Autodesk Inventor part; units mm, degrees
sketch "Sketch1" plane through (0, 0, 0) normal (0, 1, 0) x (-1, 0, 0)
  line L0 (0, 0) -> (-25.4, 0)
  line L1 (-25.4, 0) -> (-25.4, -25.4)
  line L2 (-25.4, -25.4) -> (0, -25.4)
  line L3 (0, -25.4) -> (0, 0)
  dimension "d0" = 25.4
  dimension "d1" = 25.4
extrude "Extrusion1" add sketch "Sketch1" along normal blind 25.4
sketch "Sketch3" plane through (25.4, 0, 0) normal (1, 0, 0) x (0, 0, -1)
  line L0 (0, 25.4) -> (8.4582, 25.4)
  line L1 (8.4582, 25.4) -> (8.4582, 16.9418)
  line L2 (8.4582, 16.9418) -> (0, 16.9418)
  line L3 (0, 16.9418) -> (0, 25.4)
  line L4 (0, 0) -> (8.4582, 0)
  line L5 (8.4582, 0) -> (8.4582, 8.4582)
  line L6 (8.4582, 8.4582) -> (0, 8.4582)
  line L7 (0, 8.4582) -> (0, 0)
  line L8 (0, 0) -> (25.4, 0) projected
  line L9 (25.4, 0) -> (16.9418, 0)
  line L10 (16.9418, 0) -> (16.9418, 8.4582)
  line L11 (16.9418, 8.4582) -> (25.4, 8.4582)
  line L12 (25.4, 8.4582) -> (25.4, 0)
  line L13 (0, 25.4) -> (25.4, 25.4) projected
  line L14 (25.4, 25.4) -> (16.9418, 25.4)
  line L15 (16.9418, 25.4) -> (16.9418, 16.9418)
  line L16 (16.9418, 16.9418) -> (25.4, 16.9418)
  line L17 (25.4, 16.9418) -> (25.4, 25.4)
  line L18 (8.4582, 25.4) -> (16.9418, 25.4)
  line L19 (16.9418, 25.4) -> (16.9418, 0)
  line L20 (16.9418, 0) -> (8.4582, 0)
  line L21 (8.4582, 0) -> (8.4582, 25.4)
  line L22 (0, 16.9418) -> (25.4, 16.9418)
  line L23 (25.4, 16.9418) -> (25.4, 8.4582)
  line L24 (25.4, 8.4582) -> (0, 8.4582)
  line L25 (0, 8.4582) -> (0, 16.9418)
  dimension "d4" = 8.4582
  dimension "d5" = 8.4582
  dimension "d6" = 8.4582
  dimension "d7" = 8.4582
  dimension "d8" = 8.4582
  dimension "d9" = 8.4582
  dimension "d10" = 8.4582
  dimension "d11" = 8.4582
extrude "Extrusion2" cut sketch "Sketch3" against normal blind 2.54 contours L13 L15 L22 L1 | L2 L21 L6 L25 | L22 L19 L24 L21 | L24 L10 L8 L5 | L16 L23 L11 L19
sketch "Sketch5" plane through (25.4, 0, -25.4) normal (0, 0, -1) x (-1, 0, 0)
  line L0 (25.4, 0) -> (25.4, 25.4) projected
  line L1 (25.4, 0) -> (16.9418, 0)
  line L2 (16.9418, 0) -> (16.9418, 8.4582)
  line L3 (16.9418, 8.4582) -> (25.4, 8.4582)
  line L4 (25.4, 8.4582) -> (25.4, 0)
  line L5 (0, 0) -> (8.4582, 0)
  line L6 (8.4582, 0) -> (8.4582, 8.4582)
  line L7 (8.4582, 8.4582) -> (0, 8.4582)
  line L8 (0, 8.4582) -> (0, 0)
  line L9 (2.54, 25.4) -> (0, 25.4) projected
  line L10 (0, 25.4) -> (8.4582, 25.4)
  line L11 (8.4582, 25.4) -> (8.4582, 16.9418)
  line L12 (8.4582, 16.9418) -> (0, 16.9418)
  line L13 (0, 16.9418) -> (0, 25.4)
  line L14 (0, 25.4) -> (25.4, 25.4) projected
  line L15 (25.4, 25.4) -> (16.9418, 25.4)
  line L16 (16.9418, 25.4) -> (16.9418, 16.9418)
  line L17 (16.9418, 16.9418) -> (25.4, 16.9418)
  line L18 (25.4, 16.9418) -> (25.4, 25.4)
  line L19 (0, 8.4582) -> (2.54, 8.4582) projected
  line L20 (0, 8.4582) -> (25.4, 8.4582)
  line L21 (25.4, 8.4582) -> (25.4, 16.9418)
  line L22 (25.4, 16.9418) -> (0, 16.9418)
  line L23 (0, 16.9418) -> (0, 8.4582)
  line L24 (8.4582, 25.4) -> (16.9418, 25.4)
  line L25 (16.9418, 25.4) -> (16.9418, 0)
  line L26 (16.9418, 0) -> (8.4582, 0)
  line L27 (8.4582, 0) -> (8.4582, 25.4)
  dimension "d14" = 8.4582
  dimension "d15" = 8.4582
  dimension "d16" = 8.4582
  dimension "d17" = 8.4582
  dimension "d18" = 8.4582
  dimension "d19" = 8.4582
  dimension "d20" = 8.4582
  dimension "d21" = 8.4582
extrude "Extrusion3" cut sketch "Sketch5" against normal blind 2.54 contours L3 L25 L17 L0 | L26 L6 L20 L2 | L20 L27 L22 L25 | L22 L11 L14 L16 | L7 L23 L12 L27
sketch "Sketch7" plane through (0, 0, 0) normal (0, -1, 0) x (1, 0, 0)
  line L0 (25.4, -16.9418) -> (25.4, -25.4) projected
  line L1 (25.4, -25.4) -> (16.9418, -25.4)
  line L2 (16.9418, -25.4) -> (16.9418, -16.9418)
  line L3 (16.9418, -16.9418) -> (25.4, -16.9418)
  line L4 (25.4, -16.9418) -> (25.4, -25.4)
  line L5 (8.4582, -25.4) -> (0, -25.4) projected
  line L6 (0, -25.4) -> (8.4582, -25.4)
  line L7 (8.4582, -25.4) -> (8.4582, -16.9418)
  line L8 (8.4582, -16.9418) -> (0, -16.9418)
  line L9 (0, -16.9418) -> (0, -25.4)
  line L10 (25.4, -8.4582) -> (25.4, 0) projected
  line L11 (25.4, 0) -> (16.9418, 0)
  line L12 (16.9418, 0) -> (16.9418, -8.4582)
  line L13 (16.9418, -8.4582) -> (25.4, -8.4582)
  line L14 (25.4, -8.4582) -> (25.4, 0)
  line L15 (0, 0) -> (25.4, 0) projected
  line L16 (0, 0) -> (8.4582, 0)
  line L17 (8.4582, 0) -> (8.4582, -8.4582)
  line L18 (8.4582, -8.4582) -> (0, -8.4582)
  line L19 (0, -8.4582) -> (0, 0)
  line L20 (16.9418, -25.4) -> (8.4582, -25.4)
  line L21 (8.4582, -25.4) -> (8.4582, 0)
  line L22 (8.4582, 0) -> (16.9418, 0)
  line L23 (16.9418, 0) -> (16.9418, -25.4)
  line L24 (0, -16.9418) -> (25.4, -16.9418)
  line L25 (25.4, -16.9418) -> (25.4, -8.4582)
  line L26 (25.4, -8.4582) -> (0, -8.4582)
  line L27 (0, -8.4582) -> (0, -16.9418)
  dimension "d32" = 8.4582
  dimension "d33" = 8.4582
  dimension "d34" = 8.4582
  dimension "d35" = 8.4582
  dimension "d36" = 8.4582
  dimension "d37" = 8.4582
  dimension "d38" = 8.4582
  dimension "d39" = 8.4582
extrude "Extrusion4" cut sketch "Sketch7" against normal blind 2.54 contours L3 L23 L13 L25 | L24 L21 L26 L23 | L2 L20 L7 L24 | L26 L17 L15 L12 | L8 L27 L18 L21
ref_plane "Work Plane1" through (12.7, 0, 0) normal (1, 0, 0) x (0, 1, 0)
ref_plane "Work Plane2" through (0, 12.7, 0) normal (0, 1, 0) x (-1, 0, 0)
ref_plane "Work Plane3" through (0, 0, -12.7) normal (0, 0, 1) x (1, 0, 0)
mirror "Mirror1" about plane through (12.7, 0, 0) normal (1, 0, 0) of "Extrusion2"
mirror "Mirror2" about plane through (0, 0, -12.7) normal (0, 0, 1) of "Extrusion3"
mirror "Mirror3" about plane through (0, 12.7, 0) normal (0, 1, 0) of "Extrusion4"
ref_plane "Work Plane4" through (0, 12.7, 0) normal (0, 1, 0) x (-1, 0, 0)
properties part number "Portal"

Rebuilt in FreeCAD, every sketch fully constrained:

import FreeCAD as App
import Part
import Sketcher
Q = App.Units.Quantity

doc = App.newDocument("Part")
body = doc.addObject("PartDesign::Body", "Body")

sketch1 = body.newObject("Sketcher::SketchObject", "Sketch")
sketch1.AttachmentSupport = (doc.getObject("XZ_Plane"), [""])
sketch1.MapMode = "FlatFace"
sketch1.addGeometry(Part.LineSegment(App.Vector(0, -25, 0), App.Vector(0, 0, 0)), False)
sketch1.addGeometry(Part.LineSegment(App.Vector(0, 0, 0), App.Vector(25, 0, 0)), False)
sketch1.addGeometry(Part.LineSegment(App.Vector(25, 0, 0), App.Vector(25, -25, 0)), False)
sketch1.addGeometry(Part.LineSegment(App.Vector(25, -25, 0), App.Vector(0, -25, 0)), False)
sketch1.addConstraint(Sketcher.Constraint("Coincident", 0, 2, 1, 1))
sketch1.addConstraint(Sketcher.Constraint("Coincident", 1, 2, 2, 1))
sketch1.addConstraint(Sketcher.Constraint("Coincident", 2, 2, 3, 1))
sketch1.addConstraint(Sketcher.Constraint("Coincident", 3, 2, 0, 1))
sketch1.addConstraint(Sketcher.Constraint("Vertical", 0))
sketch1.addConstraint(Sketcher.Constraint("Horizontal", 1))
sketch1.addConstraint(Sketcher.Constraint("Vertical", 2))
sketch1.addConstraint(Sketcher.Constraint("Horizontal", 3))
sketch1.addConstraint(Sketcher.Constraint("Coincident", 0, 2, -1, 1))
sketch1.addConstraint(Sketcher.Constraint("Equal", 3, 0))
sketch1.addConstraint(Sketcher.Constraint("DistanceX", 1, 1, 1, 2, Q("1 in")))
pad1 = body.newObject("PartDesign::Pad", "Pad")
pad1.Profile = sketch1
pad1.Length = Q("1 in")
pad1.Reversed = True

sketch2 = body.newObject("Sketcher::SketchObject", "Sketch001")
sketch2.AttachmentSupport = (doc.getObject("YZ_Plane"), [""])
sketch2.MapMode = "FlatFace"
sketch2.AttachmentOffset = App.Placement(App.Vector(0, 0, 1 * 25.4), App.Rotation())
sketch2.addGeometry(Part.LineSegment(App.Vector(25, -17, 0), App.Vector(25, -8, 0)), False)
sketch2.addGeometry(Part.LineSegment(App.Vector(25, -8, 0), App.Vector(17, -8, 0)), False)
sketch2.addGeometry(Part.LineSegment(App.Vector(17, -8, 0), App.Vector(17, 0, 0)), False)
sketch2.addGeometry(Part.LineSegment(App.Vector(17, 0, 0), App.Vector(8, 0, 0)), False)
sketch2.addGeometry(Part.LineSegment(App.Vector(8, 0, 0), App.Vector(8, -8, 0)), False)
sketch2.addGeometry(Part.LineSegment(App.Vector(8, -8, 0), App.Vector(0, -8, 0)), False)
sketch2.addGeometry(Part.LineSegment(App.Vector(0, -8, 0), App.Vector(0, -17, 0)), False)
sketch2.addGeometry(Part.LineSegment(App.Vector(0, -17, 0), App.Vector(8, -17, 0)), False)
sketch2.addGeometry(Part.LineSegment(App.Vector(8, -17, 0), App.Vector(8, -25, 0)), False)
sketch2.addGeometry(Part.LineSegment(App.Vector(8, -25, 0), App.Vector(17, -25, 0)), False)
sketch2.addGeometry(Part.LineSegment(App.Vector(17, -25, 0), App.Vector(17, -17, 0)), False)
sketch2.addGeometry(Part.LineSegment(App.Vector(17, -17, 0), App.Vector(25, -17, 0)), False)
sketch2.addConstraint(Sketcher.Constraint("Coincident", 0, 2, 1, 1))
sketch2.addConstraint(Sketcher.Constraint("Coincident", 1, 2, 2, 1))
sketch2.addConstraint(Sketcher.Constraint("Coincident", 2, 2, 3, 1))
sketch2.addConstraint(Sketcher.Constraint("Coincident", 3, 2, 4, 1))
sketch2.addConstraint(Sketcher.Constraint("Coincident", 4, 2, 5, 1))
sketch2.addConstraint(Sketcher.Constraint("Coincident", 5, 2, 6, 1))
sketch2.addConstraint(Sketcher.Constraint("Coincident", 6, 2, 7, 1))
sketch2.addConstraint(Sketcher.Constraint("Coincident", 7, 2, 8, 1))
sketch2.addConstraint(Sketcher.Constraint("Coincident", 8, 2, 9, 1))
sketch2.addConstraint(Sketcher.Constraint("Coincident", 9, 2, 10, 1))
sketch2.addConstraint(Sketcher.Constraint("Coincident", 10, 2, 11, 1))
sketch2.addConstraint(Sketcher.Constraint("Coincident", 11, 2, 0, 1))
sketch2.addConstraint(Sketcher.Constraint("Vertical", 0))
sketch2.addConstraint(Sketcher.Constraint("Horizontal", 1))
sketch2.addConstraint(Sketcher.Constraint("Vertical", 2))
sketch2.addConstraint(Sketcher.Constraint("Horizontal", 3))
sketch2.addConstraint(Sketcher.Constraint("Vertical", 4))
sketch2.addConstraint(Sketcher.Constraint("Horizontal", 5))
sketch2.addConstraint(Sketcher.Constraint("Vertical", 6))
sketch2.addConstraint(Sketcher.Constraint("Horizontal", 7))
sketch2.addConstraint(Sketcher.Constraint("Vertical", 8))
sketch2.addConstraint(Sketcher.Constraint("Horizontal", 9))
sketch2.addConstraint(Sketcher.Constraint("Vertical", 10))
sketch2.addConstraint(Sketcher.Constraint("Horizontal", 11))
sketch2.addConstraint(Sketcher.Constraint("PointOnObject", 2, 2, -1))
sketch2.addConstraint(Sketcher.Constraint("PointOnObject", 5, 2, -2))
sketch2.addConstraint(Sketcher.Constraint("Horizontal", 1, 2, 4, 2))
sketch2.addConstraint(Sketcher.Constraint("Horizontal", 7, 2, 10, 2))
sketch2.addConstraint(Sketcher.Constraint("Vertical", 4, 2, 7, 2))
sketch2.addConstraint(Sketcher.Constraint("Vertical", 2, 2, 9, 2))
sketch2.addConstraint(Sketcher.Constraint("Equal", 1, 5))
sketch2.addConstraint(Sketcher.Constraint("Equal", 9, 0))
sketch2.addConstraint(Sketcher.Constraint("Equal", 11, 2))
sketch2.addConstraint(Sketcher.Constraint("Equal", 4, 8))
sketch2.addConstraint(Sketcher.Constraint("DistanceX", 1, 2, 1, 1, Q("0.333 in")))
sketch2.addConstraint(Sketcher.Constraint("DistanceX", -1, 1, 0, 2, Q("1 in")))
pocket1 = body.newObject("PartDesign::Pocket", "Pocket")
pocket1.Profile = sketch2
pocket1.Length = Q("0.1 in")

sketch3 = body.newObject("Sketcher::SketchObject", "Sketch002")
sketch3.AttachmentSupport = (doc.getObject("XY_Plane"), [""])
sketch3.MapMode = "FlatFace"
sketch3.AttachmentOffset = App.Placement(App.Vector(0, 0, -1 * 25.4), App.Rotation())
sketch3.addGeometry(Part.LineSegment(App.Vector(8, 8, 0), App.Vector(0, 8, 0)), False)
sketch3.addGeometry(Part.LineSegment(App.Vector(0, 8, 0), App.Vector(0, 17, 0)), False)
sketch3.addGeometry(Part.LineSegment(App.Vector(0, 17, 0), App.Vector(8, 17, 0)), False)
sketch3.addGeometry(Part.LineSegment(App.Vector(8, 17, 0), App.Vector(8, 25, 0)), False)
sketch3.addGeometry(Part.LineSegment(App.Vector(8, 25, 0), App.Vector(17, 25, 0)), False)
sketch3.addGeometry(Part.LineSegment(App.Vector(17, 25, 0), App.Vector(17, 17, 0)), False)
sketch3.addGeometry(Part.LineSegment(App.Vector(17, 17, 0), App.Vector(25, 17, 0)), False)
sketch3.addGeometry(Part.LineSegment(App.Vector(25, 17, 0), App.Vector(25, 8, 0)), False)
sketch3.addGeometry(Part.LineSegment(App.Vector(25, 8, 0), App.Vector(17, 8, 0)), False)
sketch3.addGeometry(Part.LineSegment(App.Vector(17, 8, 0), App.Vector(17, 0, 0)), False)
sketch3.addGeometry(Part.LineSegment(App.Vector(17, 0, 0), App.Vector(8, 0, 0)), False)
sketch3.addGeometry(Part.LineSegment(App.Vector(8, 0, 0), App.Vector(8, 8, 0)), False)
sketch3.addConstraint(Sketcher.Constraint("Coincident", 0, 2, 1, 1))
sketch3.addConstraint(Sketcher.Constraint("Coincident", 1, 2, 2, 1))
sketch3.addConstraint(Sketcher.Constraint("Coincident", 2, 2, 3, 1))
sketch3.addConstraint(Sketcher.Constraint("Coincident", 3, 2, 4, 1))
sketch3.addConstraint(Sketcher.Constraint("Coincident", 4, 2, 5, 1))
sketch3.addConstraint(Sketcher.Constraint("Coincident", 5, 2, 6, 1))
sketch3.addConstraint(Sketcher.Constraint("Coincident", 6, 2, 7, 1))
sketch3.addConstraint(Sketcher.Constraint("Coincident", 7, 2, 8, 1))
sketch3.addConstraint(Sketcher.Constraint("Coincident", 8, 2, 9, 1))
sketch3.addConstraint(Sketcher.Constraint("Coincident", 9, 2, 10, 1))
sketch3.addConstraint(Sketcher.Constraint("Coincident", 10, 2, 11, 1))
sketch3.addConstraint(Sketcher.Constraint("Coincident", 11, 2, 0, 1))
sketch3.addConstraint(Sketcher.Constraint("Horizontal", 0))
sketch3.addConstraint(Sketcher.Constraint("Vertical", 1))
sketch3.addConstraint(Sketcher.Constraint("Horizontal", 2))
sketch3.addConstraint(Sketcher.Constraint("Vertical", 3))
sketch3.addConstraint(Sketcher.Constraint("Horizontal", 4))
sketch3.addConstraint(Sketcher.Constraint("Vertical", 5))
sketch3.addConstraint(Sketcher.Constraint("Horizontal", 6))
sketch3.addConstraint(Sketcher.Constraint("Vertical", 7))
sketch3.addConstraint(Sketcher.Constraint("Horizontal", 8))
sketch3.addConstraint(Sketcher.Constraint("Vertical", 9))
sketch3.addConstraint(Sketcher.Constraint("Horizontal", 10))
sketch3.addConstraint(Sketcher.Constraint("Vertical", 11))
sketch3.addConstraint(Sketcher.Constraint("PointOnObject", 0, 2, -2))
sketch3.addConstraint(Sketcher.Constraint("PointOnObject", 9, 2, -1))
sketch3.addConstraint(Sketcher.Constraint("Horizontal", 2, 2, 5, 2))
sketch3.addConstraint(Sketcher.Constraint("Horizontal", 0, 2, 7, 2))
sketch3.addConstraint(Sketcher.Constraint("Vertical", 5, 2, 8, 2))
sketch3.addConstraint(Sketcher.Constraint("Vertical", 3, 2, 10, 2))
sketch3.addConstraint(Sketcher.Constraint("Equal", 2, 6))
sketch3.addConstraint(Sketcher.Constraint("Equal", 10, 1))
sketch3.addConstraint(Sketcher.Constraint("Equal", 8, 3))
sketch3.addConstraint(Sketcher.Constraint("Equal", 5, 9))
sketch3.addConstraint(Sketcher.Constraint("DistanceX", 0, 2, 0, 1, Q("0.333 in")))
sketch3.addConstraint(Sketcher.Constraint("DistanceY", -1, 1, 3, 2, Q("1 in")))
pocket2 = body.newObject("PartDesign::Pocket", "Pocket001")
pocket2.Profile = sketch3
pocket2.Length = Q("0.1 in")
pocket2.Reversed = True

sketch4 = body.newObject("Sketcher::SketchObject", "Sketch003")
sketch4.AttachmentSupport = (doc.getObject("XZ_Plane"), [""])
sketch4.MapMode = "FlatFace"
sketch4.addGeometry(Part.LineSegment(App.Vector(17, -17, 0), App.Vector(25, -17, 0)), False)
sketch4.addGeometry(Part.LineSegment(App.Vector(25, -17, 0), App.Vector(25, -8, 0)), False)
sketch4.addGeometry(Part.LineSegment(App.Vector(25, -8, 0), App.Vector(17, -8, 0)), False)
sketch4.addGeometry(Part.LineSegment(App.Vector(17, -8, 0), App.Vector(17, 0, 0)), False)
sketch4.addGeometry(Part.LineSegment(App.Vector(17, 0, 0), App.Vector(8, 0, 0)), False)
sketch4.addGeometry(Part.LineSegment(App.Vector(8, 0, 0), App.Vector(8, -8, 0)), False)
sketch4.addGeometry(Part.LineSegment(App.Vector(8, -8, 0), App.Vector(0, -8, 0)), False)
sketch4.addGeometry(Part.LineSegment(App.Vector(0, -8, 0), App.Vector(0, -17, 0)), False)
sketch4.addGeometry(Part.LineSegment(App.Vector(0, -17, 0), App.Vector(8, -17, 0)), False)
sketch4.addGeometry(Part.LineSegment(App.Vector(8, -17, 0), App.Vector(8, -25, 0)), False)
sketch4.addGeometry(Part.LineSegment(App.Vector(8, -25, 0), App.Vector(17, -25, 0)), False)
sketch4.addGeometry(Part.LineSegment(App.Vector(17, -25, 0), App.Vector(17, -17, 0)), False)
sketch4.addConstraint(Sketcher.Constraint("Coincident", 0, 2, 1, 1))
sketch4.addConstraint(Sketcher.Constraint("Coincident", 1, 2, 2, 1))
sketch4.addConstraint(Sketcher.Constraint("Coincident", 2, 2, 3, 1))
sketch4.addConstraint(Sketcher.Constraint("Coincident", 3, 2, 4, 1))
sketch4.addConstraint(Sketcher.Constraint("Coincident", 4, 2, 5, 1))
sketch4.addConstraint(Sketcher.Constraint("Coincident", 5, 2, 6, 1))
sketch4.addConstraint(Sketcher.Constraint("Coincident", 6, 2, 7, 1))
sketch4.addConstraint(Sketcher.Constraint("Coincident", 7, 2, 8, 1))
sketch4.addConstraint(Sketcher.Constraint("Coincident", 8, 2, 9, 1))
sketch4.addConstraint(Sketcher.Constraint("Coincident", 9, 2, 10, 1))
sketch4.addConstraint(Sketcher.Constraint("Coincident", 10, 2, 11, 1))
sketch4.addConstraint(Sketcher.Constraint("Coincident", 11, 2, 0, 1))
sketch4.addConstraint(Sketcher.Constraint("Horizontal", 0))
sketch4.addConstraint(Sketcher.Constraint("Vertical", 1))
sketch4.addConstraint(Sketcher.Constraint("Horizontal", 2))
sketch4.addConstraint(Sketcher.Constraint("Vertical", 3))
sketch4.addConstraint(Sketcher.Constraint("Horizontal", 4))
sketch4.addConstraint(Sketcher.Constraint("Vertical", 5))
sketch4.addConstraint(Sketcher.Constraint("Horizontal", 6))
sketch4.addConstraint(Sketcher.Constraint("Vertical", 7))
sketch4.addConstraint(Sketcher.Constraint("Horizontal", 8))
sketch4.addConstraint(Sketcher.Constraint("Vertical", 9))
sketch4.addConstraint(Sketcher.Constraint("Horizontal", 10))
sketch4.addConstraint(Sketcher.Constraint("Vertical", 11))
sketch4.addConstraint(Sketcher.Constraint("PointOnObject", 3, 2, -1))
sketch4.addConstraint(Sketcher.Constraint("PointOnObject", 6, 2, -2))
sketch4.addConstraint(Sketcher.Constraint("Horizontal", 2, 2, 5, 2))
sketch4.addConstraint(Sketcher.Constraint("Horizontal", 0, 2, 7, 2))
sketch4.addConstraint(Sketcher.Constraint("Vertical", 5, 2, 8, 2))
sketch4.addConstraint(Sketcher.Constraint("Vertical", 3, 2, 10, 2))
sketch4.addConstraint(Sketcher.Constraint("Equal", 2, 6))
sketch4.addConstraint(Sketcher.Constraint("Equal", 10, 1))
sketch4.addConstraint(Sketcher.Constraint("Equal", 8, 3))
sketch4.addConstraint(Sketcher.Constraint("Equal", 5, 9))
sketch4.addConstraint(Sketcher.Constraint("DistanceX", 0, 1, 0, 2, Q("0.333 in")))
sketch4.addConstraint(Sketcher.Constraint("DistanceX", -1, 1, 0, 2, Q("1 in")))
pocket3 = body.newObject("PartDesign::Pocket", "Pocket002")
pocket3.Profile = sketch4
pocket3.Length = Q("0.1 in")
doc.recompute()

datumplane = body.newObject("PartDesign::Plane", "DatumPlane")
datumplane.AttachmentSupport = (doc.getObject("YZ_Plane"), [""])
datumplane.MapMode = "FlatFace"
datumplane.AttachmentOffset = App.Placement(App.Vector(0, 0, 0.5 * 25.4), App.Rotation())
mirrored = body.newObject("PartDesign::Mirrored", "Mirrored")
mirrored.Originals = [pocket1]
mirrored.MirrorPlane = (datumplane, [""])
body.Tip = mirrored
doc.recompute()

datumplane2 = body.newObject("PartDesign::Plane", "DatumPlane001")
datumplane2.AttachmentSupport = (doc.getObject("XY_Plane"), [""])
datumplane2.MapMode = "FlatFace"
datumplane2.AttachmentOffset = App.Placement(App.Vector(0, 0, -0.5 * 25.4), App.Rotation())
mirrored2 = body.newObject("PartDesign::Mirrored", "Mirrored001")
mirrored2.Originals = [pocket2]
mirrored2.MirrorPlane = (datumplane2, [""])
body.Tip = mirrored2
doc.recompute()

datumplane3 = body.newObject("PartDesign::Plane", "DatumPlane002")
datumplane3.AttachmentSupport = (doc.getObject("XZ_Plane"), [""])
datumplane3.MapMode = "FlatFace"
datumplane3.AttachmentOffset = App.Placement(App.Vector(0, 0, -0.5 * 25.4), App.Rotation())
mirrored3 = body.newObject("PartDesign::Mirrored", "Mirrored002")
mirrored3.Originals = [pocket3]
mirrored3.MirrorPlane = (datumplane3, [""])
body.Tip = mirrored3

doc.recompute()
